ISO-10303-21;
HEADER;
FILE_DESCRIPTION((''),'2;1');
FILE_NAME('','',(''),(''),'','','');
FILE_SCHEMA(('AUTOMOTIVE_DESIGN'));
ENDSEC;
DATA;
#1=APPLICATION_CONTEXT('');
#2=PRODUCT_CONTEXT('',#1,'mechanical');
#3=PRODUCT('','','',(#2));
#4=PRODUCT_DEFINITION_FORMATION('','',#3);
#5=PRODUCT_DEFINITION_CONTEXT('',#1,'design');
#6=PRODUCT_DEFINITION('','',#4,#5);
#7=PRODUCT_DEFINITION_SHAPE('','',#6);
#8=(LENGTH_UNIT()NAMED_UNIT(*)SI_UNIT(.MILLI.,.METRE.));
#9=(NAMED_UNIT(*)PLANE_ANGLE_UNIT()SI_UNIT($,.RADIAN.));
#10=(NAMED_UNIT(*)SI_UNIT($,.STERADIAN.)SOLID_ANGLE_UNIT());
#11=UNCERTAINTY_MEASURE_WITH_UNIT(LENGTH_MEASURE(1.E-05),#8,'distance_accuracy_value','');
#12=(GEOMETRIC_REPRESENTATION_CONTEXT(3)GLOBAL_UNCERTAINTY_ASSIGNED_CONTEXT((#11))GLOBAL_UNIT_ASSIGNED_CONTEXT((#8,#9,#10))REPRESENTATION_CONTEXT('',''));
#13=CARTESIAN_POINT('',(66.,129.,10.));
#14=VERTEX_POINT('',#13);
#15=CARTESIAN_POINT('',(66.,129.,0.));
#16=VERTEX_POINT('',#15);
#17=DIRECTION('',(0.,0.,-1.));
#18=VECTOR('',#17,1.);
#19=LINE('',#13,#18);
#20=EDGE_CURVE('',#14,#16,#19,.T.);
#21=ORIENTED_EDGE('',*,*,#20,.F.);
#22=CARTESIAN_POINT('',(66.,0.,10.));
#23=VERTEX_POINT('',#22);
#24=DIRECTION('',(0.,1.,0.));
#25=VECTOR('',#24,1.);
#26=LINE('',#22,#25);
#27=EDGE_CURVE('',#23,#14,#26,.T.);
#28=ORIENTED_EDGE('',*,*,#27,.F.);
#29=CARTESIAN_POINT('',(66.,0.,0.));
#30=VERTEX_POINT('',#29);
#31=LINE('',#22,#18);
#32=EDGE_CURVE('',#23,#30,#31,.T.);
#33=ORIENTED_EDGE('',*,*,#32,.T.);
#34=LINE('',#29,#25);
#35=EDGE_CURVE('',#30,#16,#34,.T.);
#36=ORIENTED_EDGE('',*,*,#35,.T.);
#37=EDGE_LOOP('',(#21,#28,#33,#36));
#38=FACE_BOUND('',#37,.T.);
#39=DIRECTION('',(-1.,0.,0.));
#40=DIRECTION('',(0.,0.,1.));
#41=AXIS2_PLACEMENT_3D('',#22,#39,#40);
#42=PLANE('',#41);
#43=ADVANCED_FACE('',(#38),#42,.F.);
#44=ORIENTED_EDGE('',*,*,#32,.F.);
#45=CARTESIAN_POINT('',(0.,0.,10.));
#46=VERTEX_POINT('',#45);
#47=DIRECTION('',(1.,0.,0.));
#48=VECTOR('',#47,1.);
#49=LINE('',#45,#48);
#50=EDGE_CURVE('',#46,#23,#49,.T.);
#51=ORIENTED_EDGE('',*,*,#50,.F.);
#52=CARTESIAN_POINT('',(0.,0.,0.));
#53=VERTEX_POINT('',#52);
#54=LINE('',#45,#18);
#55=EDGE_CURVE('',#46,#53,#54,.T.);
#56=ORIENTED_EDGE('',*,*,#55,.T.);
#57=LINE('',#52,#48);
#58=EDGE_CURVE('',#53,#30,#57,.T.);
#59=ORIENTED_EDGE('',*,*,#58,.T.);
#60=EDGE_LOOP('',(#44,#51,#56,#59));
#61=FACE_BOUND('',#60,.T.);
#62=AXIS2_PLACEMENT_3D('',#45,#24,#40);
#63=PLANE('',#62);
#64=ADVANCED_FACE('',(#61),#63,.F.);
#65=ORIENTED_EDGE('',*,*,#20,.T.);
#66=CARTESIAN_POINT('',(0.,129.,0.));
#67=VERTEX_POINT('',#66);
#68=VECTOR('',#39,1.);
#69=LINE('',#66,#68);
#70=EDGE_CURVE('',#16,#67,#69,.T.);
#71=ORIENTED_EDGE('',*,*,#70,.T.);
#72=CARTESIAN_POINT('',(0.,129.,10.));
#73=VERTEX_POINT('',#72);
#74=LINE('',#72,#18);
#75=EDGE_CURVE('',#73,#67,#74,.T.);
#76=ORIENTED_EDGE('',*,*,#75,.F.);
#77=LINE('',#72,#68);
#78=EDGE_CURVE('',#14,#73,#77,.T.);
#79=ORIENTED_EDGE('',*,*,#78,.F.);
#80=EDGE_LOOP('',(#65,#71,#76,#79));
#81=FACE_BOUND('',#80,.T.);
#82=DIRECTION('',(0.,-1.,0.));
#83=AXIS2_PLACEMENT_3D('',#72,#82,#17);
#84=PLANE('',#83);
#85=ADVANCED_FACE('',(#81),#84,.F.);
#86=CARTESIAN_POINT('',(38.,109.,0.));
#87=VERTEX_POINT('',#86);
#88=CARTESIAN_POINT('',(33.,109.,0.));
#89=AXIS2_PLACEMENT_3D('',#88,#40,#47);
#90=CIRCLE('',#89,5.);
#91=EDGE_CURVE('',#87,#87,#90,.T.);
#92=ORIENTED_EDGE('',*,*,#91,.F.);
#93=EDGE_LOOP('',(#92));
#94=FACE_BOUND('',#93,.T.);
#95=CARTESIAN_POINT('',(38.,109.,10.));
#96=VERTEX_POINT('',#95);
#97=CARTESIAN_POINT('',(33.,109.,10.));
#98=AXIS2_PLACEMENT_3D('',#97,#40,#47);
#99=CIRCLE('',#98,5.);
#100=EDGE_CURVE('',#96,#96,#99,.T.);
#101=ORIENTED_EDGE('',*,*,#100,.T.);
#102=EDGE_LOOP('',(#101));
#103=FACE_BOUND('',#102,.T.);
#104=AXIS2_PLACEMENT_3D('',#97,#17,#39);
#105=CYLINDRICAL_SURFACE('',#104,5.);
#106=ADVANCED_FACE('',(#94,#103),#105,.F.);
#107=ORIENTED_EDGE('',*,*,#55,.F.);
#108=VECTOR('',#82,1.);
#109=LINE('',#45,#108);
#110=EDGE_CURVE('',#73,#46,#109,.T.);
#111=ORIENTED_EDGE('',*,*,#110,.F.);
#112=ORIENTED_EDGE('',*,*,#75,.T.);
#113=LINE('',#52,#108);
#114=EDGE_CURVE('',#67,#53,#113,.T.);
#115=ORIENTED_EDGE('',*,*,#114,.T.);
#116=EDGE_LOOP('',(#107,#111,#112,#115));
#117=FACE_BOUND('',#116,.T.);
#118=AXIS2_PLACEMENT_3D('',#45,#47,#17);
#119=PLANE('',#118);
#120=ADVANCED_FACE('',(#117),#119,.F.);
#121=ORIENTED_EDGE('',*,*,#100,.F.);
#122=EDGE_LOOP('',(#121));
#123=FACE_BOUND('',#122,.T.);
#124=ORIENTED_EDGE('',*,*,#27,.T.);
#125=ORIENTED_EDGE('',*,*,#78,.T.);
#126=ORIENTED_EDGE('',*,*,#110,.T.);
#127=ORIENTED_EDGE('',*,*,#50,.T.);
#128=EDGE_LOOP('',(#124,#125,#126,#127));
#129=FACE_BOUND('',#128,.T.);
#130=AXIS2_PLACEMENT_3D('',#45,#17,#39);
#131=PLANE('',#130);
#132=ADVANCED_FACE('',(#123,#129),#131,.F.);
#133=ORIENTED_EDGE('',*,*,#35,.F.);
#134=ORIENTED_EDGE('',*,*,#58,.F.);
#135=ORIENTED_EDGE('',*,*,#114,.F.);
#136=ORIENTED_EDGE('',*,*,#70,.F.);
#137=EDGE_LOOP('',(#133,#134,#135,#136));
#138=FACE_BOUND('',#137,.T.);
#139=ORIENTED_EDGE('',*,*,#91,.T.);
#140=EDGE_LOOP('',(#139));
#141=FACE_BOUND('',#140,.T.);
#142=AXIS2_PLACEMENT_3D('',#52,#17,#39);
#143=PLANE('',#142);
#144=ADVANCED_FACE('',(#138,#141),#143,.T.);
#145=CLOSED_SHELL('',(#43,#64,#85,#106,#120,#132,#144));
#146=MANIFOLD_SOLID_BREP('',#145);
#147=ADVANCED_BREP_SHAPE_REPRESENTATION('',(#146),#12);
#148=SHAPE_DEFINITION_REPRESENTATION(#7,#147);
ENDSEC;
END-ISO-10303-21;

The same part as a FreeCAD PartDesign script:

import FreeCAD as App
import Part
import Sketcher

V = App.Vector
Q = App.Units.Quantity


def add_polygon(sketch, points):
    """Adds a closed chain of lines whose ends are joined by coincident constraints."""
    first, n = sketch.GeometryCount, len(points)
    for a, b in zip(points, points[1:] + points[:1]):
        sketch.addGeometry(Part.LineSegment(App.Vector(*a, 0), App.Vector(*b, 0)), False)
    for i in range(n):
        sketch.addConstraint(Sketcher.Constraint("Coincident", first + i, 2, first + (i + 1) % n, 1))

doc = App.newDocument("Part")
body = doc.addObject("PartDesign::Body", "Body")

sketch1 = body.newObject("Sketcher::SketchObject", "Sketch")
sketch1.AttachmentSupport = (doc.getObject("XY_Plane"), [""])
sketch1.MapMode = "FlatFace"
add_polygon(sketch1, [(0, 129), (0, 0), (66, 0), (66, 129)])
sketch1.addGeometry(Part.Circle(V(33, 109, 0), V(0, 0, 1), 5), False)
sketch1.addConstraint([
    Sketcher.Constraint("Vertical", 0),
    Sketcher.Constraint("Horizontal", 1),
    Sketcher.Constraint("Vertical", 2),
    Sketcher.Constraint("Horizontal", 3),
    Sketcher.Constraint("Coincident", 0, 2, -1, 1),
    Sketcher.Constraint("Diameter", 4, Q("10 mm")),
    Sketcher.Constraint("DistanceX", 1, 1, 1, 2, Q("66 mm")),
    Sketcher.Constraint("DistanceY", 0, 2, 0, 1, Q("129 mm")),
    Sketcher.Constraint("DistanceX", -1, 1, 4, 3, Q("33 mm")),
    Sketcher.Constraint("DistanceY", -1, 1, 4, 3, Q("109 mm")),
])
pad1 = body.newObject("PartDesign::Pad", "Pad")
pad1.Profile = sketch1
pad1.Length = 10

doc.recompute()
